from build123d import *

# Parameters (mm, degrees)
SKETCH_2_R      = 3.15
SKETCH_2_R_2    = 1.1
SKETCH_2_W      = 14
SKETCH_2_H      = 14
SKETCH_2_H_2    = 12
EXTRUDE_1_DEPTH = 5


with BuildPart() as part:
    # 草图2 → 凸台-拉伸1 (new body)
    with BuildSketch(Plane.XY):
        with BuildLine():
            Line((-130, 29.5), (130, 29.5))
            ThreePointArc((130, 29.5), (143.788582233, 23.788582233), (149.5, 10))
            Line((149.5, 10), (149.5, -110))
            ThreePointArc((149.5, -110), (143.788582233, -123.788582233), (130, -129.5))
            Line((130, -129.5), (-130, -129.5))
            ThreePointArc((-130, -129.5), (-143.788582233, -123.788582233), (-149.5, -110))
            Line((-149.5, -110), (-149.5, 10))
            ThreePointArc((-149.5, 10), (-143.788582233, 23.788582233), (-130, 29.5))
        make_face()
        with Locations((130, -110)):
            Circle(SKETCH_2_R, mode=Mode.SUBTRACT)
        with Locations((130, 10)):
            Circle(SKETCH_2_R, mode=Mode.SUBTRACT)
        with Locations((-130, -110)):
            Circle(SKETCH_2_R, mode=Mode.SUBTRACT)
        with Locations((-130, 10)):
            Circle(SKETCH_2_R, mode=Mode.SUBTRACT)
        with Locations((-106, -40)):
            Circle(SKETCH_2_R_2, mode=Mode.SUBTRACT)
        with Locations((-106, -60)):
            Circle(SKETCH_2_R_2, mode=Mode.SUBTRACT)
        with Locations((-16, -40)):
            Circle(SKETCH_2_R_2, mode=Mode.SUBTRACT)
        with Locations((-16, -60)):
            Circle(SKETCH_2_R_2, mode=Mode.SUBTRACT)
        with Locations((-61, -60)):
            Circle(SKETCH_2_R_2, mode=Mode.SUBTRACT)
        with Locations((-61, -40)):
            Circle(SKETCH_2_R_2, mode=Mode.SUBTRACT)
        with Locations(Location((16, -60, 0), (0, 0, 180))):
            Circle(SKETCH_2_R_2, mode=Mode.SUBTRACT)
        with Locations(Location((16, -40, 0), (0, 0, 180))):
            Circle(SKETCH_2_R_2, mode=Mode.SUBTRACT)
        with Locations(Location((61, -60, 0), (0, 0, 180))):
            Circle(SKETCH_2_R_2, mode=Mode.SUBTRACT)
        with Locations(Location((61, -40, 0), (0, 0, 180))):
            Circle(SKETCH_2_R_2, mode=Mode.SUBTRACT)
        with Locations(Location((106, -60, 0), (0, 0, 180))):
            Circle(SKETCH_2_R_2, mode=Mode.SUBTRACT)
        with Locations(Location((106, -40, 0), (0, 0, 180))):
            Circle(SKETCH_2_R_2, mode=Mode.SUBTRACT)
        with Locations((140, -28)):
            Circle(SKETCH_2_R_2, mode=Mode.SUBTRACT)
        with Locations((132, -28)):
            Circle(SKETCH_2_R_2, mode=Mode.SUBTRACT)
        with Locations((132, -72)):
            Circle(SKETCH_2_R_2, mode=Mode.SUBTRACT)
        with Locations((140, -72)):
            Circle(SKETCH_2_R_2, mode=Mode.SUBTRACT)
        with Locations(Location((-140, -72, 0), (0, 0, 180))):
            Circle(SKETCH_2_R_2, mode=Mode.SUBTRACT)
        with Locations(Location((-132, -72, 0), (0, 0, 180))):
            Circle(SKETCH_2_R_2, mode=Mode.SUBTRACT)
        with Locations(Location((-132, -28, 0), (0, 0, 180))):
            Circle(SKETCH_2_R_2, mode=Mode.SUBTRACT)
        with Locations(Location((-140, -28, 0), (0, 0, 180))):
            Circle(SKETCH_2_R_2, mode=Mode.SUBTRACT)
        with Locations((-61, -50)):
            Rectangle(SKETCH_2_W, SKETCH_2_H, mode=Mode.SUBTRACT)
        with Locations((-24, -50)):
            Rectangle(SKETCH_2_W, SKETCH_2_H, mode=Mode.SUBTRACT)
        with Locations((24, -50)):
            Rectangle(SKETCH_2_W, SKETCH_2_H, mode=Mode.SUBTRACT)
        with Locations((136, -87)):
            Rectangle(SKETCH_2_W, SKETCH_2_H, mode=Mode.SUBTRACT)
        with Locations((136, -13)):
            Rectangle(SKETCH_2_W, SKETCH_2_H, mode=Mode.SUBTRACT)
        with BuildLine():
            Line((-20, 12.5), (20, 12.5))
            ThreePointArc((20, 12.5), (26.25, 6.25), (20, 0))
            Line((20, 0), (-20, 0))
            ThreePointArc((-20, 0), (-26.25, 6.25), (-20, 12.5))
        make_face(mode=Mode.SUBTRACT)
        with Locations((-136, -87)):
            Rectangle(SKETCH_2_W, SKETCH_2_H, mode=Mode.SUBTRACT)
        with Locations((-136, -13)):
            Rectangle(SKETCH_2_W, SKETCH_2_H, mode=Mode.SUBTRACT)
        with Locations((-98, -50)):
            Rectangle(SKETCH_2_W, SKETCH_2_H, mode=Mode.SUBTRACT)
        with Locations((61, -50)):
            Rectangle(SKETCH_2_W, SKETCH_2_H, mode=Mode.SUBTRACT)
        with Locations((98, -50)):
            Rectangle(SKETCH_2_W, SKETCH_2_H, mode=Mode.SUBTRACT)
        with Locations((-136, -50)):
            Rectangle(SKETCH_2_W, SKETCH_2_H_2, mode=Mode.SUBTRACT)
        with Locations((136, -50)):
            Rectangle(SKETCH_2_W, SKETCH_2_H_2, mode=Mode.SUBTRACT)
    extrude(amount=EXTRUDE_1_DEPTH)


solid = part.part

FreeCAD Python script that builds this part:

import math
import FreeCAD as App
import Part
import Sketcher

doc = App.newDocument("Part")
body = doc.addObject("PartDesign::Body", "Body")

sketch1 = body.newObject("Sketcher::SketchObject", "Sketch")
sketch1.AttachmentSupport = (doc.getObject("XY_Plane"), [""])
sketch1.MapMode = "FlatFace"
sketch1.addGeometry([
    Part.LineSegment(App.Vector(130, 29.5, 0), App.Vector(-130, 29.5, 0)),
    Part.ArcOfCircle(Part.Circle(App.Vector(-130, 10, 0), App.Vector(0, 0, 1), 19.5), math.radians(90), math.radians(180)),
    Part.LineSegment(App.Vector(-149.5, 10, 0), App.Vector(-149.5, -110, 0)),
    Part.ArcOfCircle(Part.Circle(App.Vector(-130, -110, 0), App.Vector(0, 0, 1), 19.5), math.radians(180), math.radians(270)),
    Part.LineSegment(App.Vector(-130, -129.5, 0), App.Vector(130, -129.5, 0)),
    Part.ArcOfCircle(Part.Circle(App.Vector(130, -110, 0), App.Vector(0, 0, 1), 19.5), math.radians(-90), math.radians(0)),
    Part.LineSegment(App.Vector(149.5, -110, 0), App.Vector(149.5, 10, 0)),
    Part.ArcOfCircle(Part.Circle(App.Vector(130, 10, 0), App.Vector(0, 0, 1), 19.5), math.radians(0), math.radians(90)),
    Part.Circle(App.Vector(130, -110, 0), App.Vector(0, 0, 1), 3.15),
    Part.LineSegment(App.Vector(129, -94, 0), App.Vector(129, -80, 0)),
    Part.LineSegment(App.Vector(129, -80, 0), App.Vector(143, -80, 0)),
    Part.LineSegment(App.Vector(143, -80, 0), App.Vector(143, -94, 0)),
    Part.LineSegment(App.Vector(143, -94, 0), App.Vector(129, -94, 0)),
    Part.Circle(App.Vector(140, -72, 0), App.Vector(0, 0, 1), 1.1),
    Part.Circle(App.Vector(132, -72, 0), App.Vector(0, 0, 1), 1.1),
    Part.Circle(App.Vector(106, -60, 0), App.Vector(0, 0, 1), 1.1),
    Part.Circle(App.Vector(61, -60, 0), App.Vector(0, 0, 1), 1.1),
    Part.Circle(App.Vector(16, -60, 0), App.Vector(0, 0, 1), 1.1),
    Part.Circle(App.Vector(-130, -110, 0), App.Vector(0, 0, 1), 3.15),
    Part.LineSegment(App.Vector(-143, -94, 0), App.Vector(-143, -80, 0)),
    Part.LineSegment(App.Vector(-143, -80, 0), App.Vector(-129, -80, 0)),
    Part.LineSegment(App.Vector(-129, -80, 0), App.Vector(-129, -94, 0)),
    Part.LineSegment(App.Vector(-129, -94, 0), App.Vector(-143, -94, 0)),
    Part.Circle(App.Vector(-16, -60, 0), App.Vector(0, 0, 1), 1.1),
    Part.Circle(App.Vector(-61, -60, 0), App.Vector(0, 0, 1), 1.1),
    Part.Circle(App.Vector(-132, -72, 0), App.Vector(0, 0, 1), 1.1),
    Part.Circle(App.Vector(-140, -72, 0), App.Vector(0, 0, 1), 1.1),
    Part.Circle(App.Vector(-106, -60, 0), App.Vector(0, 0, 1), 1.1),
    Part.LineSegment(App.Vector(129, -56, 0), App.Vector(129, -44, 0)),
    Part.LineSegment(App.Vector(129, -44, 0), App.Vector(143, -44, 0)),
    Part.LineSegment(App.Vector(143, -44, 0), App.Vector(143, -56, 0)),
    Part.LineSegment(App.Vector(143, -56, 0), App.Vector(129, -56, 0)),
    Part.LineSegment(App.Vector(91, -57, 0), App.Vector(91, -43, 0)),
    Part.LineSegment(App.Vector(91, -43, 0), App.Vector(105, -43, 0)),
    Part.LineSegment(App.Vector(105, -43, 0), App.Vector(105, -57, 0)),
    Part.LineSegment(App.Vector(105, -57, 0), App.Vector(91, -57, 0)),
    Part.Circle(App.Vector(106, -40, 0), App.Vector(0, 0, 1), 1.1),
    Part.Circle(App.Vector(140, -28, 0), App.Vector(0, 0, 1), 1.1),
    Part.Circle(App.Vector(132, -28, 0), App.Vector(0, 0, 1), 1.1),
    Part.LineSegment(App.Vector(54, -57, 0), App.Vector(54, -43, 0)),
    Part.LineSegment(App.Vector(54, -43, 0), App.Vector(68, -43, 0)),
    Part.LineSegment(App.Vector(68, -43, 0), App.Vector(68, -57, 0)),
    Part.LineSegment(App.Vector(68, -57, 0), App.Vector(54, -57, 0)),
    Part.Circle(App.Vector(61, -40, 0), App.Vector(0, 0, 1), 1.1),
    Part.LineSegment(App.Vector(17, -57, 0), App.Vector(17, -43, 0)),
    Part.LineSegment(App.Vector(17, -43, 0), App.Vector(31, -43, 0)),
    Part.LineSegment(App.Vector(31, -43, 0), App.Vector(31, -57, 0)),
    Part.LineSegment(App.Vector(31, -57, 0), App.Vector(17, -57, 0)),
    Part.Circle(App.Vector(16, -40, 0), App.Vector(0, 0, 1), 1.1),
    Part.LineSegment(App.Vector(129, -20, 0), App.Vector(129, -6, 0)),
    Part.LineSegment(App.Vector(129, -6, 0), App.Vector(143, -6, 0)),
    Part.LineSegment(App.Vector(143, -6, 0), App.Vector(143, -20, 0)),
    Part.LineSegment(App.Vector(143, -20, 0), App.Vector(129, -20, 0)),
    Part.Circle(App.Vector(130, 10, 0), App.Vector(0, 0, 1), 3.15),
    Part.LineSegment(App.Vector(-31, -57, 0), App.Vector(-31, -43, 0)),
    Part.LineSegment(App.Vector(-31, -43, 0), App.Vector(-17, -43, 0)),
    Part.LineSegment(App.Vector(-17, -43, 0), App.Vector(-17, -57, 0)),
    Part.LineSegment(App.Vector(-17, -57, 0), App.Vector(-31, -57, 0)),
    Part.Circle(App.Vector(-16, -40, 0), App.Vector(0, 0, 1), 1.1),
    Part.LineSegment(App.Vector(-68, -57, 0), App.Vector(-68, -43, 0)),
    Part.LineSegment(App.Vector(-68, -43, 0), App.Vector(-54, -43, 0)),
    Part.LineSegment(App.Vector(-54, -43, 0), App.Vector(-54, -57, 0)),
    Part.LineSegment(App.Vector(-54, -57, 0), App.Vector(-68, -57, 0)),
    Part.Circle(App.Vector(-61, -40, 0), App.Vector(0, 0, 1), 1.1),
    Part.LineSegment(App.Vector(-105, -57, 0), App.Vector(-105, -43, 0)),
    Part.LineSegment(App.Vector(-105, -43, 0), App.Vector(-91, -43, 0)),
    Part.LineSegment(App.Vector(-91, -43, 0), App.Vector(-91, -57, 0)),
    Part.LineSegment(App.Vector(-91, -57, 0), App.Vector(-105, -57, 0)),
    Part.Circle(App.Vector(-106, -40, 0), App.Vector(0, 0, 1), 1.1),
    Part.LineSegment(App.Vector(-143, -56, 0), App.Vector(-143, -44, 0)),
    Part.LineSegment(App.Vector(-143, -44, 0), App.Vector(-129, -44, 0)),
    Part.LineSegment(App.Vector(-129, -44, 0), App.Vector(-129, -56, 0)),
    Part.LineSegment(App.Vector(-129, -56, 0), App.Vector(-143, -56, 0)),
    Part.Circle(App.Vector(-132, -28, 0), App.Vector(0, 0, 1), 1.1),
    Part.Circle(App.Vector(-140, -28, 0), App.Vector(0, 0, 1), 1.1),
    Part.LineSegment(App.Vector(-20, 12.5, 0), App.Vector(20, 12.5, 0)),
    Part.ArcOfCircle(Part.Circle(App.Vector(20, 6.25, 0), App.Vector(0, 0, 1), 6.25), math.radians(-90), math.radians(90)),
    Part.LineSegment(App.Vector(20, 0, 0), App.Vector(-20, 0, 0)),
    Part.ArcOfCircle(Part.Circle(App.Vector(-20, 6.25, 0), App.Vector(0, 0, 1), 6.25), math.radians(90), math.radians(270)),
    Part.LineSegment(App.Vector(-143, -20, 0), App.Vector(-143, -6, 0)),
    Part.LineSegment(App.Vector(-143, -6, 0), App.Vector(-129, -6, 0)),
    Part.LineSegment(App.Vector(-129, -6, 0), App.Vector(-129, -20, 0)),
    Part.LineSegment(App.Vector(-129, -20, 0), App.Vector(-143, -20, 0)),
    Part.Circle(App.Vector(-130, 10, 0), App.Vector(0, 0, 1), 3.15),
], False)
sketch1.addConstraint([
    Sketcher.Constraint("Tangent", 0, 2, 1, 1),
    Sketcher.Constraint("Tangent", 1, 2, 2, 1),
    Sketcher.Constraint("Tangent", 2, 2, 3, 1),
    Sketcher.Constraint("Tangent", 3, 2, 4, 1),
    Sketcher.Constraint("Tangent", 4, 2, 5, 1),
    Sketcher.Constraint("Tangent", 5, 2, 6, 1),
    Sketcher.Constraint("Tangent", 6, 2, 7, 1),
    Sketcher.Constraint("Tangent", 7, 2, 0, 1),
    Sketcher.Constraint("Coincident", 9, 2, 10, 1),
    Sketcher.Constraint("Coincident", 10, 2, 11, 1),
    Sketcher.Constraint("Coincident", 11, 2, 12, 1),
    Sketcher.Constraint("Coincident", 12, 2, 9, 1),
    Sketcher.Constraint("Coincident", 19, 2, 20, 1),
    Sketcher.Constraint("Coincident", 20, 2, 21, 1),
    Sketcher.Constraint("Coincident", 21, 2, 22, 1),
    Sketcher.Constraint("Coincident", 22, 2, 19, 1),
    Sketcher.Constraint("Coincident", 28, 2, 29, 1),
    Sketcher.Constraint("Coincident", 29, 2, 30, 1),
    Sketcher.Constraint("Coincident", 30, 2, 31, 1),
    Sketcher.Constraint("Coincident", 31, 2, 28, 1),
    Sketcher.Constraint("Coincident", 32, 2, 33, 1),
    Sketcher.Constraint("Coincident", 33, 2, 34, 1),
    Sketcher.Constraint("Coincident", 34, 2, 35, 1),
    Sketcher.Constraint("Coincident", 35, 2, 32, 1),
    Sketcher.Constraint("Coincident", 39, 2, 40, 1),
    Sketcher.Constraint("Coincident", 40, 2, 41, 1),
    Sketcher.Constraint("Coincident", 41, 2, 42, 1),
    Sketcher.Constraint("Coincident", 42, 2, 39, 1),
    Sketcher.Constraint("Coincident", 44, 2, 45, 1),
    Sketcher.Constraint("Coincident", 45, 2, 46, 1),
    Sketcher.Constraint("Coincident", 46, 2, 47, 1),
    Sketcher.Constraint("Coincident", 47, 2, 44, 1),
    Sketcher.Constraint("Coincident", 49, 2, 50, 1),
    Sketcher.Constraint("Coincident", 50, 2, 51, 1),
    Sketcher.Constraint("Coincident", 51, 2, 52, 1),
    Sketcher.Constraint("Coincident", 52, 2, 49, 1),
    Sketcher.Constraint("Coincident", 54, 2, 55, 1),
    Sketcher.Constraint("Coincident", 55, 2, 56, 1),
    Sketcher.Constraint("Coincident", 56, 2, 57, 1),
    Sketcher.Constraint("Coincident", 57, 2, 54, 1),
    Sketcher.Constraint("Coincident", 59, 2, 60, 1),
    Sketcher.Constraint("Coincident", 60, 2, 61, 1),
    Sketcher.Constraint("Coincident", 61, 2, 62, 1),
    Sketcher.Constraint("Coincident", 62, 2, 59, 1),
    Sketcher.Constraint("Coincident", 64, 2, 65, 1),
    Sketcher.Constraint("Coincident", 65, 2, 66, 1),
    Sketcher.Constraint("Coincident", 66, 2, 67, 1),
    Sketcher.Constraint("Coincident", 67, 2, 64, 1),
    Sketcher.Constraint("Coincident", 69, 2, 70, 1),
    Sketcher.Constraint("Coincident", 70, 2, 71, 1),
    Sketcher.Constraint("Coincident", 71, 2, 72, 1),
    Sketcher.Constraint("Coincident", 72, 2, 69, 1),
    Sketcher.Constraint("Tangent", 75, 2, 76, 2),
    Sketcher.Constraint("Tangent", 76, 1, 77, 1),
    Sketcher.Constraint("Tangent", 77, 2, 78, 2),
    Sketcher.Constraint("Tangent", 78, 1, 75, 1),
    Sketcher.Constraint("Coincident", 79, 2, 80, 1),
    Sketcher.Constraint("Coincident", 80, 2, 81, 1),
    Sketcher.Constraint("Coincident", 81, 2, 82, 1),
    Sketcher.Constraint("Coincident", 82, 2, 79, 1),
    Sketcher.Constraint("Horizontal", 0),
    Sketcher.Constraint("Vertical", 2),
    Sketcher.Constraint("Horizontal", 4),
    Sketcher.Constraint("Vertical", 6),
    Sketcher.Constraint("Vertical", 9),
    Sketcher.Constraint("Horizontal", 10),
    Sketcher.Constraint("Vertical", 11),
    Sketcher.Constraint("Horizontal", 12),
    Sketcher.Constraint("Vertical", 19),
    Sketcher.Constraint("Horizontal", 20),
    Sketcher.Constraint("Vertical", 21),
    Sketcher.Constraint("Horizontal", 22),
    Sketcher.Constraint("Vertical", 28),
    Sketcher.Constraint("Horizontal", 29),
    Sketcher.Constraint("Vertical", 30),
    Sketcher.Constraint("Horizontal", 31),
    Sketcher.Constraint("Vertical", 32),
    Sketcher.Constraint("Horizontal", 33),
    Sketcher.Constraint("Vertical", 34),
    Sketcher.Constraint("Horizontal", 35),
    Sketcher.Constraint("Vertical", 39),
    Sketcher.Constraint("Horizontal", 40),
    Sketcher.Constraint("Vertical", 41),
    Sketcher.Constraint("Horizontal", 42),
    Sketcher.Constraint("Vertical", 44),
    Sketcher.Constraint("Horizontal", 45),
    Sketcher.Constraint("Vertical", 46),
    Sketcher.Constraint("Horizontal", 47),
    Sketcher.Constraint("Vertical", 49),
    Sketcher.Constraint("Horizontal", 50),
    Sketcher.Constraint("Vertical", 51),
    Sketcher.Constraint("Horizontal", 52),
    Sketcher.Constraint("Vertical", 54),
    Sketcher.Constraint("Horizontal", 55),
    Sketcher.Constraint("Vertical", 56),
    Sketcher.Constraint("Horizontal", 57),
    Sketcher.Constraint("Vertical", 59),
    Sketcher.Constraint("Horizontal", 60),
    Sketcher.Constraint("Vertical", 61),
    Sketcher.Constraint("Horizontal", 62),
    Sketcher.Constraint("Vertical", 64),
    Sketcher.Constraint("Horizontal", 65),
    Sketcher.Constraint("Vertical", 66),
    Sketcher.Constraint("Horizontal", 67),
    Sketcher.Constraint("Vertical", 69),
    Sketcher.Constraint("Horizontal", 70),
    Sketcher.Constraint("Vertical", 71),
    Sketcher.Constraint("Horizontal", 72),
    Sketcher.Constraint("Horizontal", 75),
    Sketcher.Constraint("Horizontal", 77),
    Sketcher.Constraint("Vertical", 79),
    Sketcher.Constraint("Horizontal", 80),
    Sketcher.Constraint("Vertical", 81),
    Sketcher.Constraint("Horizontal", 82),
    Sketcher.Constraint("Coincident", 8, 3, 5, 3),
    Sketcher.Constraint("Coincident", 18, 3, 3, 3),
    Sketcher.Constraint("Coincident", 53, 3, 7, 3),
    Sketcher.Constraint("Coincident", 83, 3, 1, 3),
    Sketcher.Constraint("Equal", 1, 3),
    Sketcher.Constraint("Equal", 3, 5),
    Sketcher.Constraint("Equal", 5, 7),
    Sketcher.Constraint("Equal", 13, 14),
    Sketcher.Constraint("Equal", 14, 15),
    Sketcher.Constraint("Equal", 15, 16),
    Sketcher.Constraint("Equal", 16, 17),
    Sketcher.Constraint("Equal", 8, 18),
    Sketcher.Constraint("Equal", 17, 23),
    Sketcher.Constraint("Equal", 23, 24),
    Sketcher.Constraint("Equal", 24, 25),
    Sketcher.Constraint("Equal", 25, 26),
    Sketcher.Constraint("Equal", 26, 27),
    Sketcher.Constraint("Equal", 27, 36),
    Sketcher.Constraint("Equal", 36, 37),
    Sketcher.Constraint("Equal", 37, 38),
    Sketcher.Constraint("Equal", 38, 43),
    Sketcher.Constraint("Equal", 43, 48),
    Sketcher.Constraint("Equal", 18, 53),
    Sketcher.Constraint("Equal", 48, 58),
    Sketcher.Constraint("Equal", 58, 63),
    Sketcher.Constraint("Equal", 63, 68),
    Sketcher.Constraint("Equal", 68, 73),
    Sketcher.Constraint("Equal", 73, 74),
    Sketcher.Constraint("Equal", 53, 83),
    Sketcher.Constraint("Symmetric", 76, 1, 77, 2, -1, 1),
    Sketcher.Constraint("Symmetric", 17, 3, 23, 3, -2),
    Sketcher.Constraint("Symmetric", 16, 3, 24, 3, -2),
    Sketcher.Constraint("Symmetric", 14, 3, 25, 3, -2),
    Sketcher.Constraint("Symmetric", 13, 3, 26, 3, -2),
    Sketcher.Constraint("Symmetric", 15, 3, 27, 3, -2),
    Sketcher.Constraint("Symmetric", 48, 3, 58, 3, -2),
    Sketcher.Constraint("Symmetric", 43, 3, 63, 3, -2),
    Sketcher.Constraint("Symmetric", 36, 3, 68, 3, -2),
    Sketcher.Constraint("Symmetric", 38, 3, 73, 3, -2),
    Sketcher.Constraint("Symmetric", 37, 3, 74, 3, -2),
    Sketcher.Constraint("Symmetric", 10, 2, 19, 2, -2),
    Sketcher.Constraint("Symmetric", 12, 2, 21, 2, -2),
    Sketcher.Constraint("Symmetric", 45, 2, 54, 2, -2),
    Sketcher.Constraint("Symmetric", 47, 2, 56, 2, -2),
    Sketcher.Constraint("Symmetric", 40, 2, 59, 2, -2),
    Sketcher.Constraint("Symmetric", 42, 2, 61, 2, -2),
    Sketcher.Constraint("Symmetric", 33, 2, 64, 2, -2),
    Sketcher.Constraint("Symmetric", 35, 2, 66, 2, -2),
    Sketcher.Constraint("Symmetric", 29, 2, 69, 2, -2),
    Sketcher.Constraint("Symmetric", 31, 2, 71, 2, -2),
    Sketcher.Constraint("Symmetric", 50, 2, 79, 2, -2),
    Sketcher.Constraint("Symmetric", 52, 2, 81, 2, -2),
    Sketcher.Constraint("Horizontal", 13, 3, 14, 3),
    Sketcher.Constraint("Horizontal", 15, 3, 16, 3),
    Sketcher.Constraint("Horizontal", 16, 3, 17, 3),
    Sketcher.Constraint("Horizontal", 37, 3, 38, 3),
    Sketcher.Constraint("Horizontal", 36, 3, 43, 3),
    Sketcher.Constraint("Horizontal", 43, 3, 48, 3),
    Sketcher.Constraint("Horizontal", 33, 2, 39, 2),
    Sketcher.Constraint("Horizontal", 35, 2, 41, 2),
    Sketcher.Constraint("Horizontal", 40, 2, 44, 2),
    Sketcher.Constraint("Horizontal", 42, 2, 46, 2),
    Sketcher.Constraint("Vertical", 15, 3, 36, 3),
    Sketcher.Constraint("Vertical", 13, 3, 37, 3),
    Sketcher.Constraint("Vertical", 14, 3, 38, 3),
    Sketcher.Constraint("Vertical", 16, 3, 43, 3),
    Sketcher.Constraint("Vertical", 17, 3, 48, 3),
    Sketcher.Constraint("Vertical", 12, 2, 28, 2),
    Sketcher.Constraint("Vertical", 11, 2, 29, 2),
    Sketcher.Constraint("Vertical", 31, 2, 49, 2),
    Sketcher.Constraint("Vertical", 30, 2, 50, 2),
    Sketcher.Constraint("Equal", 31, 33),
    Sketcher.Constraint("Equal", 35, 40),
    Sketcher.Constraint("Equal", 42, 45),
    Sketcher.Constraint("Equal", 82, 9),
    Sketcher.Constraint("Equal", 21, 32),
    Sketcher.Constraint("Equal", 46, 49),
    Sketcher.Constraint("Diameter", 8, 6.3),
    Sketcher.Constraint("Diameter", 13, 2.2),
    Sketcher.Constraint("Radius", 1, 19.5),
    Sketcher.Constraint("DistanceX", 0, 2, 0, 1, 260.0),
    Sketcher.Constraint("DistanceX", 10, 1, 10, 2, 14.0),
    Sketcher.Constraint("DistanceX", 75, 1, 75, 2, 40.0),
    Sketcher.Constraint("DistanceY", 2, 2, 2, 1, 120.0),
    Sketcher.Constraint("DistanceY", 28, 1, 28, 2, 12.0),
    Sketcher.Constraint("Radius", 76, 6.25),
    Sketcher.Constraint("DistanceX", 1, 3, -1, 1, 130.0),
    Sketcher.Constraint("DistanceY", -1, 1, 1, 3, 10.0),
    Sketcher.Constraint("DistanceX", -1, 1, 13, 3, 140.0),
    Sketcher.Constraint("DistanceY", 13, 3, -1, 1, 72.0),
    Sketcher.Constraint("DistanceX", -1, 1, 14, 3, 132.0),
    Sketcher.Constraint("DistanceX", -1, 1, 15, 3, 106.0),
    Sketcher.Constraint("DistanceY", 15, 3, -1, 1, 60.0),
    Sketcher.Constraint("DistanceX", -1, 1, 16, 3, 61.0),
    Sketcher.Constraint("DistanceX", -1, 1, 17, 3, 16.0),
    Sketcher.Constraint("DistanceY", 36, 3, -1, 1, 40.0),
    Sketcher.Constraint("DistanceY", 37, 3, -1, 1, 28.0),
    Sketcher.Constraint("DistanceX", -1, 1, 9, 2, 129.0),
    Sketcher.Constraint("DistanceY", 9, 2, -1, 1, 80.0),
    Sketcher.Constraint("DistanceY", 28, 2, -1, 1, 44.0),
    Sketcher.Constraint("DistanceX", -1, 1, 32, 2, 91.0),
    Sketcher.Constraint("DistanceY", 32, 2, -1, 1, 43.0),
    Sketcher.Constraint("DistanceX", -1, 1, 39, 2, 54.0),
    Sketcher.Constraint("DistanceX", -1, 1, 44, 2, 17.0),
    Sketcher.Constraint("DistanceY", 49, 2, -1, 1, 6.0),
])
pad1 = body.newObject("PartDesign::Pad", "Pad")
pad1.Profile = sketch1
pad1.Length = 5

doc.recompute()
